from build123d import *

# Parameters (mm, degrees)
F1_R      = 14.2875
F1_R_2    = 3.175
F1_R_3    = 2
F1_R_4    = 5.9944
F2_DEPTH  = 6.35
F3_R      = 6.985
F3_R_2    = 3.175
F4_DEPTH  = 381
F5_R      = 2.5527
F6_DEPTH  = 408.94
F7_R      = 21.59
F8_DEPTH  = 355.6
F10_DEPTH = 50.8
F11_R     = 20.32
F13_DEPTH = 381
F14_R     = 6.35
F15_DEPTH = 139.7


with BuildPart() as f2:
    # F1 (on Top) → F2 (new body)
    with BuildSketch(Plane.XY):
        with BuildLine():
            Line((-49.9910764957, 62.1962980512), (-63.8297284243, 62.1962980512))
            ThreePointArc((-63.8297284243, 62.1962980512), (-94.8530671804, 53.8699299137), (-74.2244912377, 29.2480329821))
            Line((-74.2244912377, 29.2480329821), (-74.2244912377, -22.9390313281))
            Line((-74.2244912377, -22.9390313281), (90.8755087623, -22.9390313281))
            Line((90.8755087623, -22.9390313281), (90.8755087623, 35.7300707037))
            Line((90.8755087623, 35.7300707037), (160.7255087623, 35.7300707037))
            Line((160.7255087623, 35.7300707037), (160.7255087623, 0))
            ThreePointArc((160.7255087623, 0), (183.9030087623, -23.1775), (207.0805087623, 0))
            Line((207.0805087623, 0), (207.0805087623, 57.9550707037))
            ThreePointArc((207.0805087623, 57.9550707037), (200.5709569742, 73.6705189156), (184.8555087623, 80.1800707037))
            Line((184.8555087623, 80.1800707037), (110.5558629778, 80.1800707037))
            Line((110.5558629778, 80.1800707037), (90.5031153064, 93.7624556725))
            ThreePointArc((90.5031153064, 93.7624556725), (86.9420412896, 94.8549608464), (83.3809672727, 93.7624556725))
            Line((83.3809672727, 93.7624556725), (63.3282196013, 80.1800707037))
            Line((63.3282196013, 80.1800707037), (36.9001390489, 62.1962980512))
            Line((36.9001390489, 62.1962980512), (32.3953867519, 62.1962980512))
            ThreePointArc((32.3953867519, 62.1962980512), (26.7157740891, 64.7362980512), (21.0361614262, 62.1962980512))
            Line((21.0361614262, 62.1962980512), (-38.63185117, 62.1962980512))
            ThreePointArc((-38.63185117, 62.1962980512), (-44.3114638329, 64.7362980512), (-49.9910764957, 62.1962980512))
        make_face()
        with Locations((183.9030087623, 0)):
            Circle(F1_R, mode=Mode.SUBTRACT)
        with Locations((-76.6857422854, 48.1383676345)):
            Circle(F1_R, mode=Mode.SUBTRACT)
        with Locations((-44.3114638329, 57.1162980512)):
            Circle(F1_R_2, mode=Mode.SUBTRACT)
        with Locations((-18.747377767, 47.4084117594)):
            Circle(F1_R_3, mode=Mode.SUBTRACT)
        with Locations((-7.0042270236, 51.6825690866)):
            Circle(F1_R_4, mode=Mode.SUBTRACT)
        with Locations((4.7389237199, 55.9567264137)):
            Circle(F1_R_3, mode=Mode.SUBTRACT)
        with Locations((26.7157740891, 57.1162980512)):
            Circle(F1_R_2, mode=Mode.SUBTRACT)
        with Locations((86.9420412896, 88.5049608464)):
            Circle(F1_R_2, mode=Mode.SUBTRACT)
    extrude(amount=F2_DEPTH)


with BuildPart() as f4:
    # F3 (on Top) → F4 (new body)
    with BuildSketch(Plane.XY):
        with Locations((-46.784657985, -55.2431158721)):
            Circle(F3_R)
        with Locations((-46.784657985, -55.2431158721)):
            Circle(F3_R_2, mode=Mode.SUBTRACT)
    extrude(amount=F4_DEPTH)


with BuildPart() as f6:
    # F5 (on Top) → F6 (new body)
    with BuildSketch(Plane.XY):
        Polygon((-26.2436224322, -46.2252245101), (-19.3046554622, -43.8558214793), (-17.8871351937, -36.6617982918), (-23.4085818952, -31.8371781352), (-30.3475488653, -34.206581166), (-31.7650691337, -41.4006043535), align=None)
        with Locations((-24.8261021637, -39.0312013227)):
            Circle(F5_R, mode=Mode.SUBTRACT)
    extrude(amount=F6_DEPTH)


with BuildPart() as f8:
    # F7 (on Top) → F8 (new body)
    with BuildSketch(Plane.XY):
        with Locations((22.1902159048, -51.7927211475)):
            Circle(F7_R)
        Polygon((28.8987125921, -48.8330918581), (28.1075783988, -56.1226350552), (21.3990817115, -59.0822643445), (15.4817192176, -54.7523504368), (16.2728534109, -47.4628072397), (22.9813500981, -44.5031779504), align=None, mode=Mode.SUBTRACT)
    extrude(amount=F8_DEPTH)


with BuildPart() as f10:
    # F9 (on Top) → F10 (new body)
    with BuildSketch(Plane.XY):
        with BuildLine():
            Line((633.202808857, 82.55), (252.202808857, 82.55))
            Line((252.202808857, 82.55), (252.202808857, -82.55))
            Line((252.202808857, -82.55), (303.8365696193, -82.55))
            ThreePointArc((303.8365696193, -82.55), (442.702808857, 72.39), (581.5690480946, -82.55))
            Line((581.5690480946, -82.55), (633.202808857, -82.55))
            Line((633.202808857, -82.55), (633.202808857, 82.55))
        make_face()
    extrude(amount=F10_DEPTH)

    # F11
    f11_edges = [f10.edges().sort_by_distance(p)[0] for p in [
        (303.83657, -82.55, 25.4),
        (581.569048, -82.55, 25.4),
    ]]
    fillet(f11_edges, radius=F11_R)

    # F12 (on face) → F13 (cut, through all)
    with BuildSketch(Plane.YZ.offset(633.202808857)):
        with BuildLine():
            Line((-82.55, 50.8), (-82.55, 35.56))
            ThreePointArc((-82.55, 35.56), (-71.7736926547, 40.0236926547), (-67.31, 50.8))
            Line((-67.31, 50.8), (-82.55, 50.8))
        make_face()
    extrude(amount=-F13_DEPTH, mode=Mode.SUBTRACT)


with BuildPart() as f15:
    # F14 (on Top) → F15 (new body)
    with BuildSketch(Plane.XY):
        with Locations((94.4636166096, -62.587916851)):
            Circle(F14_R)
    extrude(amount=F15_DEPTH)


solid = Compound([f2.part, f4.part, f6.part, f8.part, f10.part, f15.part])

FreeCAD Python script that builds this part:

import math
import FreeCAD as App
import Part
import Sketcher

V = App.Vector
Q = App.Units.Quantity


def edges_at(feature, points):
    """Names of the edges that pass closest to the given points."""
    edges = feature.Shape.Edges
    near = lambda p: min(range(len(edges)), key=lambda i: edges[i].distToShape(Part.Vertex(*p))[0])
    return sorted({f"Edge{near(p) + 1}" for p in points})


def add_polygon(sketch, points):
    """Adds a closed chain of lines whose ends are joined by coincident constraints."""
    first, n = sketch.GeometryCount, len(points)
    for a, b in zip(points, points[1:] + points[:1]):
        sketch.addGeometry(Part.LineSegment(App.Vector(*a, 0), App.Vector(*b, 0)), False)
    for i in range(n):
        sketch.addConstraint(Sketcher.Constraint("Coincident", first + i, 2, first + (i + 1) % n, 1))

doc = App.newDocument("Part")
body = doc.addObject("PartDesign::Body", "Body")

# Sketch on XY plane
sketch1 = body.newObject("Sketcher::SketchObject", "Sketch")
sketch1.AttachmentSupport = (doc.getObject("XY_Plane"), [""])
sketch1.MapMode = "FlatFace"
sketch1.addGeometry(Part.LineSegment(V(-50, 62.2, 0), V(-63.8, 62.2, 0)), False)
sketch1.addGeometry(Part.ArcOfCircle(Part.Circle(V(-76.7, 48.1, 0), V(0, 0, 1), 19.1), math.radians(48), math.radians(277)), False)
sketch1.addGeometry(Part.LineSegment(V(-74.2, 29.2, 0), V(-74.2, -22.9, 0)), False)
sketch1.addGeometry(Part.LineSegment(V(-74.2, -22.9, 0), V(90.9, -22.9, 0)), False)
sketch1.addGeometry(Part.LineSegment(V(90.9, -22.9, 0), V(90.9, 35.7, 0)), False)
sketch1.addGeometry(Part.LineSegment(V(90.9, 35.7, 0), V(160.7, 35.7, 0)), False)
sketch1.addGeometry(Part.LineSegment(V(160.7, 35.7, 0), V(160.7, 0, 0)), False)
sketch1.addGeometry(Part.ArcOfCircle(Part.Circle(V(183.9, 0, 0), V(0, 0, 1), 23.2), math.radians(180), math.radians(360)), False)
sketch1.addGeometry(Part.LineSegment(V(207.1, 0, 0), V(207.1, 58, 0)), False)
sketch1.addGeometry(Part.ArcOfCircle(Part.Circle(V(184.9, 58, 0), V(0, 0, 1), 22.2), math.radians(0), math.radians(90)), False)
sketch1.addGeometry(Part.LineSegment(V(184.9, 80.2, 0), V(110.6, 80.2, 0)), False)
sketch1.addGeometry(Part.LineSegment(V(110.6, 80.2, 0), V(90.5, 93.8, 0)), False)
sketch1.addGeometry(Part.ArcOfCircle(Part.Circle(V(86.9, 88.5, 0), V(0, 0, 1), 6.3), math.radians(56), math.radians(124)), False)
sketch1.addGeometry(Part.LineSegment(V(83.4, 93.8, 0), V(63.3, 80.2, 0)), False)
sketch1.addGeometry(Part.LineSegment(V(63.3, 80.2, 0), V(36.9, 62.2, 0)), False)
sketch1.addGeometry(Part.LineSegment(V(36.9, 62.2, 0), V(32.4, 62.2, 0)), False)
sketch1.addGeometry(Part.ArcOfCircle(Part.Circle(V(26.7, 57.1, 0), V(0, 0, 1), 7.6), math.radians(42), math.radians(138)), False)
sketch1.addGeometry(Part.LineSegment(V(21, 62.2, 0), V(-38.6, 62.2, 0)), False)
sketch1.addGeometry(Part.ArcOfCircle(Part.Circle(V(-44.3, 57.1, 0), V(0, 0, 1), 7.6), math.radians(42), math.radians(138)), False)
sketch1.addGeometry(Part.Circle(V(183.9, 0, 0), V(0, 0, 1), 14.3), False)
sketch1.addGeometry(Part.Circle(V(-76.7, 48.1, 0), V(0, 0, 1), 14.3), False)
sketch1.addGeometry(Part.Circle(V(-18.7, 47.4, 0), V(0, 0, 1), 2), False)
sketch1.addGeometry(Part.Circle(V(-44.3, 57.1, 0), V(0, 0, 1), 3.2), False)
sketch1.addGeometry(Part.Circle(V(-7, 51.7, 0), V(0, 0, 1), 6), False)
sketch1.addGeometry(Part.Circle(V(4.7, 56, 0), V(0, 0, 1), 2), False)
sketch1.addGeometry(Part.Circle(V(26.7, 57.1, 0), V(0, 0, 1), 3.2), False)
sketch1.addGeometry(Part.Circle(V(86.9, 88.5, 0), V(0, 0, 1), 3.2), False)
sketch1.addConstraint(Sketcher.Constraint("Coincident", 0, 2, 1, 1))
sketch1.addConstraint(Sketcher.Constraint("Coincident", 1, 2, 2, 1))
sketch1.addConstraint(Sketcher.Constraint("Coincident", 2, 2, 3, 1))
sketch1.addConstraint(Sketcher.Constraint("Coincident", 3, 2, 4, 1))
sketch1.addConstraint(Sketcher.Constraint("Coincident", 4, 2, 5, 1))
sketch1.addConstraint(Sketcher.Constraint("Coincident", 5, 2, 6, 1))
sketch1.addConstraint(Sketcher.Constraint("Tangent", 6, 2, 7, 1))
sketch1.addConstraint(Sketcher.Constraint("Tangent", 7, 2, 8, 1))
sketch1.addConstraint(Sketcher.Constraint("Tangent", 8, 2, 9, 1))
sketch1.addConstraint(Sketcher.Constraint("Tangent", 9, 2, 10, 1))
sketch1.addConstraint(Sketcher.Constraint("Coincident", 10, 2, 11, 1))
sketch1.addConstraint(Sketcher.Constraint("Tangent", 11, 2, 12, 1))
sketch1.addConstraint(Sketcher.Constraint("Tangent", 12, 2, 13, 1))
sketch1.addConstraint(Sketcher.Constraint("Coincident", 13, 2, 14, 1))
sketch1.addConstraint(Sketcher.Constraint("Coincident", 14, 2, 15, 1))
sketch1.addConstraint(Sketcher.Constraint("Coincident", 15, 2, 16, 1))
sketch1.addConstraint(Sketcher.Constraint("Coincident", 16, 2, 17, 1))
sketch1.addConstraint(Sketcher.Constraint("Coincident", 17, 2, 18, 1))
sketch1.addConstraint(Sketcher.Constraint("Coincident", 18, 2, 0, 1))
sketch1.addConstraint(Sketcher.Constraint("Horizontal", 0))
sketch1.addConstraint(Sketcher.Constraint("Vertical", 2))
sketch1.addConstraint(Sketcher.Constraint("Horizontal", 3))
sketch1.addConstraint(Sketcher.Constraint("Vertical", 4))
sketch1.addConstraint(Sketcher.Constraint("Horizontal", 5))
sketch1.addConstraint(Sketcher.Constraint("Vertical", 6))
sketch1.addConstraint(Sketcher.Constraint("Vertical", 8))
sketch1.addConstraint(Sketcher.Constraint("Horizontal", 10))
sketch1.addConstraint(Sketcher.Constraint("Horizontal", 15))
sketch1.addConstraint(Sketcher.Constraint("Horizontal", 17))
sketch1.addConstraint(Sketcher.Constraint("Coincident", 19, 3, 7, 3))
sketch1.addConstraint(Sketcher.Constraint("Coincident", 20, 3, 1, 3))
sketch1.addConstraint(Sketcher.Constraint("Coincident", 22, 3, 18, 3))
sketch1.addConstraint(Sketcher.Constraint("Coincident", 25, 3, 16, 3))
sketch1.addConstraint(Sketcher.Constraint("Coincident", 26, 3, 12, 3))
sketch1.addConstraint(Sketcher.Constraint("Equal", 16, 18))
sketch1.addConstraint(Sketcher.Constraint("Equal", 19, 20))
sketch1.addConstraint(Sketcher.Constraint("Equal", 21, 24))
sketch1.addConstraint(Sketcher.Constraint("Equal", 22, 25))
sketch1.addConstraint(Sketcher.Constraint("Equal", 25, 26))
sketch1.addConstraint(Sketcher.Constraint("PointOnObject", 7, 3, -1))
sketch1.addConstraint(Sketcher.Constraint("Horizontal", 16, 3, 18, 3))
sketch1.addConstraint(Sketcher.Constraint("Horizontal", 11, 2, 12, 2))
sketch1.addConstraint(Sketcher.Constraint("Horizontal", 10, 2, 13, 2))
sketch1.addConstraint(Sketcher.Constraint("Horizontal", 0, 2, 14, 2))
sketch1.addConstraint(Sketcher.Constraint("Horizontal", 15, 2, 16, 2))
sketch1.addConstraint(Sketcher.Constraint("Radius", 16, Q("0.3 in")))
sketch1.addConstraint(Sketcher.Constraint("Diameter", 22, Q("0.25 in")))
sketch1.addConstraint(Sketcher.Constraint("Radius", 1, Q("0.75 in")))
sketch1.addConstraint(Sketcher.Constraint("Radius", 12, Q("0.25 in")))
sketch1.addConstraint(Sketcher.Constraint("Diameter", 19, Q("1.125 in")))
sketch1.addConstraint(Sketcher.Constraint("Diameter", 23, Q("0.472 in")))
sketch1.addConstraint(Sketcher.Constraint("DistanceX", 3, 1, 3, 2, Q("6.5 in")))
sketch1.addConstraint(Sketcher.Constraint("Radius", 9, Q("0.875 in")))
sketch1.addConstraint(Sketcher.Constraint("DistanceX", 5, 1, 5, 2, Q("2.75 in")))
sketch1.addConstraint(Sketcher.Constraint("Radius", 7, Q("0.9125 in")))
sketch1.addConstraint(Sketcher.Constraint("DistanceY", 18, 3, 0, 2, Q("0.2 in")))
sketch1.addConstraint(Sketcher.Constraint("Diameter", 21, Q("4 mm")))
sketch1.addConstraint(Sketcher.Constraint("DistanceY", 5, 2, 9, 2, Q("1.75 in")))
sketch1.addConstraint(Sketcher.Constraint("Distance", 11, Q("24.2197 mm")))
sketch1.addConstraint(Sketcher.Constraint("DistanceX", 0, 2, 0, 1, Q("13.838652 mm")))
sketch1.addConstraint(Sketcher.Constraint("DistanceY", 6, 2, 6, 1, Q("35.730071 mm")))
sketch1.addConstraint(Sketcher.Constraint("DistanceY", -1, 1, 16, 3, Q("57.116298 mm")))
sketch1.addConstraint(Sketcher.Constraint("DistanceX", 23, 3, 16, 3, Q("33.720001 mm")))
sketch1.addConstraint(Sketcher.Constraint("DistanceY", 1, 3, 23, 3, Q("3.544201 mm")))
sketch1.addConstraint(Sketcher.Constraint("DistanceX", 21, 3, 24, 3, Q("23.486301 mm")))
sketch1.addConstraint(Sketcher.Constraint("DistanceY", 2, 2, 1, 3, Q("71.077399 mm")))
sketch1.addConstraint(Sketcher.Constraint("DistanceX", 10, 2, 10, 1, Q("74.299646 mm")))
sketch1.addConstraint(Sketcher.Constraint("DistanceX", 15, 2, 15, 1, Q("4.504752 mm")))
sketch1.addConstraint(Sketcher.Constraint("DistanceX", 17, 2, 17, 1, Q("59.668013 mm")))
sketch1.addConstraint(Sketcher.Constraint("DistanceY", 2, 2, 2, 1, Q("52.187064 mm")))
sketch1.addConstraint(Sketcher.Constraint("DistanceY", 4, 1, 4, 2, Q("58.669102 mm")))
sketch1.addConstraint(Sketcher.Constraint("DistanceX", -1, 1, 7, 3, Q("183.903009 mm")))
sketch1.addConstraint(Sketcher.Constraint("DistanceX", -1, 1, 12, 3, Q("86.942041 mm")))
sketch1.addConstraint(Sketcher.Constraint("DistanceY", -1, 1, 21, 3, Q("47.408412 mm")))
sketch1.addConstraint(Sketcher.Constraint("DistanceX", 21, 3, 16, 3, Q("45.463152 mm")))
sketch1.addConstraint(Sketcher.Constraint("DistanceY", 24, 3, 16, 3, Q("1.159572 mm")))
pad1 = body.newObject("PartDesign::Pad", "Pad")
pad1.Profile = sketch1
pad1.Length = Q("0.25 in")
body2 = doc.addObject("PartDesign::Body", "Body001")

# Sketch on XY plane
sketch2 = body2.newObject("Sketcher::SketchObject", "Sketch001")
sketch2.AttachmentSupport = (doc.getObject("XY_Plane001"), [""])
sketch2.MapMode = "FlatFace"
sketch2.addGeometry(Part.Circle(V(-46.8, -55.2, 0), V(0, 0, 1), 7), False)
sketch2.addGeometry(Part.Circle(V(-46.8, -55.2, 0), V(0, 0, 1), 3.2), False)
sketch2.addConstraint(Sketcher.Constraint("Coincident", 1, 3, 0, 3))
sketch2.addConstraint(Sketcher.Constraint("Diameter", 0, Q("0.55 in")))
sketch2.addConstraint(Sketcher.Constraint("Diameter", 1, Q("0.25 in")))
sketch2.addConstraint(Sketcher.Constraint("DistanceX", 0, 3, -1, 1, Q("46.784658 mm")))
sketch2.addConstraint(Sketcher.Constraint("DistanceY", 0, 3, -1, 1, Q("55.243116 mm")))
pad2 = body2.newObject("PartDesign::Pad", "Pad001")
pad2.Profile = sketch2
pad2.Length = Q("15 in")
body3 = doc.addObject("PartDesign::Body", "Body002")

# Sketch on XY plane
sketch3 = body3.newObject("Sketcher::SketchObject", "Sketch002")
sketch3.AttachmentSupport = (doc.getObject("XY_Plane002"), [""])
sketch3.MapMode = "FlatFace"
add_polygon(sketch3, [(-26.2, -46.2), (-19.3, -43.9), (-17.9, -36.7), (-23.4, -31.8), (-30.3, -34.2), (-31.8, -41.4)])  # lines 0-5
sketch3.addGeometry(Part.Circle(V(-24.8, -39, 0), V(0, 0, 1), 2.6), False)  # 6
sketch3.addConstraint(Sketcher.Constraint("Parallel", 0, 3))
sketch3.addConstraint(Sketcher.Constraint("Parallel", 1, 4))
sketch3.addConstraint(Sketcher.Constraint("Parallel", 2, 5))
sketch3.addConstraint(Sketcher.Constraint("Equal", 0, 1))
sketch3.addConstraint(Sketcher.Constraint("Equal", 1, 2))
sketch3.addConstraint(Sketcher.Constraint("Equal", 2, 3))
sketch3.addConstraint(Sketcher.Constraint("Diameter", 6, Q("0.201 in")))
sketch3.addConstraint(Sketcher.Constraint("DistanceY", 6, 3, -1, 1, Q("39.031201 mm")))
sketch3.addConstraint(Sketcher.Constraint("DistanceY", 1, 2, -1, 1, Q("36.661798 mm")))
sketch3.addConstraint(Sketcher.Constraint("Distance", 0, Q("7.332348 mm")))
sketch3.addConstraint(Sketcher.Constraint("DistanceY", 0, 2, -1, 1, Q("43.855821 mm")))
sketch3.addConstraint(Sketcher.Constraint("DistanceX", 2, 2, -1, 1, Q("23.408582 mm")))
sketch3.addConstraint(Sketcher.Constraint("DistanceY", 2, 2, -1, 1, Q("31.837178 mm")))
sketch3.addConstraint(Sketcher.Constraint("DistanceX", 3, 2, -1, 1, Q("30.347549 mm")))
sketch3.addConstraint(Sketcher.Constraint("DistanceX", 6, 3, 2, 2, Q("1.41752 mm")))
pad3 = body3.newObject("PartDesign::Pad", "Pad002")
pad3.Profile = sketch3
pad3.Length = Q("16.1 in")
body4 = doc.addObject("PartDesign::Body", "Body003")

# Sketch on XY plane
sketch4 = body4.newObject("Sketcher::SketchObject", "Sketch003")
sketch4.AttachmentSupport = (doc.getObject("XY_Plane003"), [""])
sketch4.MapMode = "FlatFace"
sketch4.addGeometry(Part.Circle(V(22, -52, 0), V(0, 0, 1), 22), False)  # 0
add_polygon(sketch4, [(23, -45), (29, -49), (28, -56), (21, -59), (15, -55), (16, -47)])  # lines 1-6
sketch4.addConstraint(Sketcher.Constraint("Parallel", 1, 4))
sketch4.addConstraint(Sketcher.Constraint("Parallel", 2, 5))
sketch4.addConstraint(Sketcher.Constraint("Parallel", 3, 6))
sketch4.addConstraint(Sketcher.Constraint("Equal", 1, 2))
sketch4.addConstraint(Sketcher.Constraint("Equal", 2, 3))
sketch4.addConstraint(Sketcher.Constraint("Equal", 3, 4))
sketch4.addConstraint(Sketcher.Constraint("Diameter", 0, Q("1.7 in")))
sketch4.addConstraint(Sketcher.Constraint("Distance", 1, Q("7.332348 mm")))
sketch4.addConstraint(Sketcher.Constraint("DistanceY", 0, 3, -1, 1, Q("51.792721 mm")))
sketch4.addConstraint(Sketcher.Constraint("DistanceY", 1, 2, -1, 1, Q("48.833092 mm")))
sketch4.addConstraint(Sketcher.Constraint("DistanceX", -1, 1, 2, 2, Q("28.107578 mm")))
sketch4.addConstraint(Sketcher.Constraint("DistanceX", -1, 1, 3, 2, Q("21.399082 mm")))
sketch4.addConstraint(Sketcher.Constraint("DistanceX", -1, 1, 4, 2, Q("15.481719 mm")))
sketch4.addConstraint(Sketcher.Constraint("DistanceY", 4, 2, -1, 1, Q("54.75235 mm")))
sketch4.addConstraint(Sketcher.Constraint("DistanceX", -1, 1, 0, 3, Q("22.190216 mm")))
pad4 = body4.newObject("PartDesign::Pad", "Pad003")
pad4.Profile = sketch4
pad4.Length = Q("14 in")
body5 = doc.addObject("PartDesign::Body", "Body004")

# Sketch on XY plane
sketch5 = body5.newObject("Sketcher::SketchObject", "Sketch004")
sketch5.AttachmentSupport = (doc.getObject("XY_Plane004"), [""])
sketch5.MapMode = "FlatFace"
sketch5.addGeometry(Part.LineSegment(V(633, 83, 0), V(252, 83, 0)), False)
sketch5.addGeometry(Part.LineSegment(V(252, 83, 0), V(252, -83, 0)), False)
sketch5.addGeometry(Part.LineSegment(V(252, -83, 0), V(304, -83, 0)), False)
sketch5.addGeometry(Part.ArcOfCircle(Part.Circle(V(443, -67, 0), V(0, 0, 1), 140), math.radians(-6), math.radians(186)), False)
sketch5.addGeometry(Part.LineSegment(V(582, -83, 0), V(633, -83, 0)), False)
sketch5.addGeometry(Part.LineSegment(V(633, -83, 0), V(633, 83, 0)), False)
sketch5.addConstraint(Sketcher.Constraint("Coincident", 0, 2, 1, 1))
sketch5.addConstraint(Sketcher.Constraint("Coincident", 1, 2, 2, 1))
sketch5.addConstraint(Sketcher.Constraint("Coincident", 2, 2, 3, 2))
sketch5.addConstraint(Sketcher.Constraint("Coincident", 3, 1, 4, 1))
sketch5.addConstraint(Sketcher.Constraint("Coincident", 4, 2, 5, 1))
sketch5.addConstraint(Sketcher.Constraint("Coincident", 5, 2, 0, 1))
sketch5.addConstraint(Sketcher.Constraint("Horizontal", 0))
sketch5.addConstraint(Sketcher.Constraint("Vertical", 1))
sketch5.addConstraint(Sketcher.Constraint("Horizontal", 2))
sketch5.addConstraint(Sketcher.Constraint("Horizontal", 4))
sketch5.addConstraint(Sketcher.Constraint("Vertical", 5))
sketch5.addConstraint(Sketcher.Constraint("Horizontal", 2, 2, 3, 1))
sketch5.addConstraint(Sketcher.Constraint("Equal", 2, 4))
sketch5.addConstraint(Sketcher.Constraint("Radius", 3, Q("5.5 in")))
sketch5.addConstraint(Sketcher.Constraint("DistanceX", 0, 2, 0, 1, Q("15 in")))
sketch5.addConstraint(Sketcher.Constraint("DistanceY", 1, 2, 1, 1, Q("6.5 in")))
sketch5.addConstraint(Sketcher.Constraint("DistanceY", 3, 3, 0, 2, Q("5.9 in")))
sketch5.addConstraint(Sketcher.Constraint("DistanceY", 3, 3, -1, 1, Q("2.65 in")))
sketch5.addConstraint(Sketcher.Constraint("DistanceX", -1, 1, 3, 3, Q("442.702809 mm")))
pad5 = body5.newObject("PartDesign::Pad", "Pad004")
pad5.Profile = sketch5
pad5.Length = Q("2 in")
doc.recompute()

fillet = body5.newObject("PartDesign::Fillet", "Fillet")
fillet.Base = (pad5, edges_at(pad5, [(303.837, -82.55, 25.4), (581.569, -82.55, 25.4)]))
fillet.Radius = Q("0.8 in")

# Sketch on YZ plane
sketch6 = body5.newObject("Sketcher::SketchObject", "Sketch005")
sketch6.AttachmentSupport = (doc.getObject("YZ_Plane004"), [""])
sketch6.MapMode = "FlatFace"
sketch6.AttachmentOffset = App.Placement(V(0, 0, 633.202809), App.Rotation())
sketch6.addGeometry(Part.LineSegment(V(-83, 51, 0), V(-83, 36, 0)), False)
sketch6.addGeometry(Part.ArcOfCircle(Part.Circle(V(-83, 51, 0), V(0, 0, 1), 15), math.radians(-90), math.radians(0)), False)
sketch6.addGeometry(Part.LineSegment(V(-67, 51, 0), V(-83, 51, 0)), False)
sketch6.addConstraint(Sketcher.Constraint("Coincident", 0, 2, 1, 1))
sketch6.addConstraint(Sketcher.Constraint("Coincident", 1, 2, 2, 1))
sketch6.addConstraint(Sketcher.Constraint("Coincident", 2, 2, 0, 1))
sketch6.addConstraint(Sketcher.Constraint("Vertical", 0))
sketch6.addConstraint(Sketcher.Constraint("Horizontal", 2))
sketch6.addConstraint(Sketcher.Constraint("Coincident", 2, 2, 1, 3))
sketch6.addConstraint(Sketcher.Constraint("Radius", 1, Q("0.6 in")))
sketch6.addConstraint(Sketcher.Constraint("DistanceY", -1, 1, 1, 3, Q("2 in")))
sketch6.addConstraint(Sketcher.Constraint("DistanceX", 1, 3, -1, 1, Q("3.25 in")))
pocket1 = body5.newObject("PartDesign::Pocket", "Pocket")
pocket1.Profile = sketch6
pocket1.Type = "ThroughAll"
body6 = doc.addObject("PartDesign::Body", "Body005")

# Sketch on XY plane
sketch7 = body6.newObject("Sketcher::SketchObject", "Sketch006")
sketch7.AttachmentSupport = (doc.getObject("XY_Plane005"), [""])
sketch7.MapMode = "FlatFace"
sketch7.addGeometry(Part.Circle(V(94, -63, 0), V(0, 0, 1), 6), False)
sketch7.addConstraint(Sketcher.Constraint("Diameter", 0, Q("0.5 in")))
sketch7.addConstraint(Sketcher.Constraint("DistanceX", -1, 1, 0, 3, Q("94.463617 mm")))
sketch7.addConstraint(Sketcher.Constraint("DistanceY", 0, 3, -1, 1, Q("62.587917 mm")))
pad6 = body6.newObject("PartDesign::Pad", "Pad005")
pad6.Profile = sketch7
pad6.Length = Q("5.5 in")

doc.recompute()
